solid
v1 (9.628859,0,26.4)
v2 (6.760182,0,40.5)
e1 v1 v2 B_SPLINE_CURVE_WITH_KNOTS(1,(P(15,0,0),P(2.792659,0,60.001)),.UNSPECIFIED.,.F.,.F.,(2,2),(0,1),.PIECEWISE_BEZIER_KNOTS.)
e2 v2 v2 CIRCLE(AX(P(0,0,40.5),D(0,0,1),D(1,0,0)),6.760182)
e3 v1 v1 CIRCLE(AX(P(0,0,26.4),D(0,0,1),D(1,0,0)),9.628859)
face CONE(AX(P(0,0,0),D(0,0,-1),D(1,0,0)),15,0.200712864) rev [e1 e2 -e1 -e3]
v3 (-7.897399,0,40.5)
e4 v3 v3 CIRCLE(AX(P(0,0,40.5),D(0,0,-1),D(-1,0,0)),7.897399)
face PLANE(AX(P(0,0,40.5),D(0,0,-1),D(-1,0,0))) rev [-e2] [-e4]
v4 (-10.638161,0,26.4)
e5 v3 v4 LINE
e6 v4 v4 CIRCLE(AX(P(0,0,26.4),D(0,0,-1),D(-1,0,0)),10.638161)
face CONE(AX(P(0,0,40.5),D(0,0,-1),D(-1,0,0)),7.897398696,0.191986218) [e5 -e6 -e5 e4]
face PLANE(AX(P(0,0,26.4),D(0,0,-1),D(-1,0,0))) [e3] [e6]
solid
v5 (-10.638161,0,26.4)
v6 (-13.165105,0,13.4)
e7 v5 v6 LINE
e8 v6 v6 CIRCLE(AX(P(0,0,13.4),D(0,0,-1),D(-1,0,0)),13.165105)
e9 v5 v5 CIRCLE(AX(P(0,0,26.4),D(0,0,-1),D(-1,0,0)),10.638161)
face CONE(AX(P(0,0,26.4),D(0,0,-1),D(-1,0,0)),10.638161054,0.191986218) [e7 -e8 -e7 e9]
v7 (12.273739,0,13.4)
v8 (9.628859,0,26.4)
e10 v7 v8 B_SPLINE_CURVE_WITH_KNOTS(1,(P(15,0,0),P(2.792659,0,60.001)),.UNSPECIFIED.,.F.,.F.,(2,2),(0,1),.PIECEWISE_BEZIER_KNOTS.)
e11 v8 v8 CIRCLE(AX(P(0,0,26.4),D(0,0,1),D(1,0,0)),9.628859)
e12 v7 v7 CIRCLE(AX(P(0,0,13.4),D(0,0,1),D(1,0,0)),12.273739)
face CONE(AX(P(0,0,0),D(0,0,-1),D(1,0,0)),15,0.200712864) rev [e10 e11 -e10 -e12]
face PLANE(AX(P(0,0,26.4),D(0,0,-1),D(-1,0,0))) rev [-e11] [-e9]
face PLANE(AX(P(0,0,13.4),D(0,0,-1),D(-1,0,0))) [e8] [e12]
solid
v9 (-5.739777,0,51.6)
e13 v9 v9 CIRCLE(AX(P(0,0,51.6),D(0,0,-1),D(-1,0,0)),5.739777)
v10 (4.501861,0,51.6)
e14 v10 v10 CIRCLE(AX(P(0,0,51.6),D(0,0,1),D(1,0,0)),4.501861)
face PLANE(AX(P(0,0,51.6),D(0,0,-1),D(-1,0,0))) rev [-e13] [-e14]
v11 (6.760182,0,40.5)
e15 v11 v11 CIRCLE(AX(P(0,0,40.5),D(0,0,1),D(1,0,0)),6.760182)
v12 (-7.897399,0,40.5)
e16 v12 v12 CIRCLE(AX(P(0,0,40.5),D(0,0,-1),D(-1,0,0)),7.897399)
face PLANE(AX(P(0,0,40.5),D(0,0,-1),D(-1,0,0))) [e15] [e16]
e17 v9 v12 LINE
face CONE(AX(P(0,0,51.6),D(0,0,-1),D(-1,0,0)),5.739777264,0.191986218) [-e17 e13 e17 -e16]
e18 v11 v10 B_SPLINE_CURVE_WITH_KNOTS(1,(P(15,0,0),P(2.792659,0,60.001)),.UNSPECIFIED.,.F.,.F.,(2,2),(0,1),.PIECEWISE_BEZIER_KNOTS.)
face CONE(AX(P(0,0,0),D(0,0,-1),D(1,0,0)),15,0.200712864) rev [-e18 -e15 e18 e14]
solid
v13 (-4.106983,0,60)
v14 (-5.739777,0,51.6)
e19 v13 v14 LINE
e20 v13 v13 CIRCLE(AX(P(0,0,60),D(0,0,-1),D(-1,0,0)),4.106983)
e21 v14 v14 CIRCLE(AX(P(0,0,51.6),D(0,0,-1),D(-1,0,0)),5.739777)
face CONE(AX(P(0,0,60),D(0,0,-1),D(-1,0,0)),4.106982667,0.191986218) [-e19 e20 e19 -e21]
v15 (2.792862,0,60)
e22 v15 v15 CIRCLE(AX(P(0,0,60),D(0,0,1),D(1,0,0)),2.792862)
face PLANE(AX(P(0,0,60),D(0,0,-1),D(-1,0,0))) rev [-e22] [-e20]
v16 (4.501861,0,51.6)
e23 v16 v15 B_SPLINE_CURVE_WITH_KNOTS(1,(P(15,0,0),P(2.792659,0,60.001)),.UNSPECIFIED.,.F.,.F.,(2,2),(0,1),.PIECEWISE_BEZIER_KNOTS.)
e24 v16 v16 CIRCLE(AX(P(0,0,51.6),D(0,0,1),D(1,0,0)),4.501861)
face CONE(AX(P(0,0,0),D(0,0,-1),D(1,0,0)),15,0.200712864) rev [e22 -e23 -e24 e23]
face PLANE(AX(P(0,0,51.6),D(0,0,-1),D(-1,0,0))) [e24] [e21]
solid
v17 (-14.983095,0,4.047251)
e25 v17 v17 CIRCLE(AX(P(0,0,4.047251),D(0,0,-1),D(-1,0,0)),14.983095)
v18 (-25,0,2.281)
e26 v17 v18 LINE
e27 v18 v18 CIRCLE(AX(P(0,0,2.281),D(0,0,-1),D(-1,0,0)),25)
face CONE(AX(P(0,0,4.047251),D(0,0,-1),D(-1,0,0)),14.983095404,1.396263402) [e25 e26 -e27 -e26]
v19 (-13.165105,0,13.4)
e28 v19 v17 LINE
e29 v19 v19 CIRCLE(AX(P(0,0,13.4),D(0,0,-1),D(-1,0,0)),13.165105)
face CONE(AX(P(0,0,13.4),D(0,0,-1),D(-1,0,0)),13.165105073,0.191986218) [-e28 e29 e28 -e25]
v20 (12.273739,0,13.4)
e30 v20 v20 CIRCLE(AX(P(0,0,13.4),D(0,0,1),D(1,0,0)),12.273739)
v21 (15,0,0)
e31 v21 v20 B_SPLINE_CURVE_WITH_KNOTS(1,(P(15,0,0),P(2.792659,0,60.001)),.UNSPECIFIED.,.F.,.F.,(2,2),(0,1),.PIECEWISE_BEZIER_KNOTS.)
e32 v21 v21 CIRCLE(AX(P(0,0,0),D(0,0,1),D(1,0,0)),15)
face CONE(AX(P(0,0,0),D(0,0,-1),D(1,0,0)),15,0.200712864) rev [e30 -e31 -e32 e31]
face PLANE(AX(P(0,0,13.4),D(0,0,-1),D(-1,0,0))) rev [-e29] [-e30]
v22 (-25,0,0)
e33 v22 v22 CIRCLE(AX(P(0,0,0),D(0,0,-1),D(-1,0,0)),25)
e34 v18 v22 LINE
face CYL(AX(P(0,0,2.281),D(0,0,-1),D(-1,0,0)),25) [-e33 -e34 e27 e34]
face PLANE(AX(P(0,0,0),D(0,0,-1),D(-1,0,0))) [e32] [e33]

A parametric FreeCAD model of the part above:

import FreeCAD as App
import Part
import Sketcher
from FreeCAD import Vector
Q = App.Units.Quantity


def add_polygon(sketch, points):
    """Adds a closed chain of lines whose ends are joined by coincident constraints."""
    first, n = sketch.GeometryCount, len(points)
    for a, b in zip(points, points[1:] + points[:1]):
        sketch.addGeometry(Part.LineSegment(App.Vector(*a, 0), App.Vector(*b, 0)), False)
    for i in range(n):
        sketch.addConstraint(Sketcher.Constraint("Coincident", first + i, 2, first + (i + 1) % n, 1))

doc = App.newDocument("Part")
params = doc.addObject("Spreadsheet::Sheet", "Params")
for row, (alias, value) in enumerate([
    ("sketch1_height", "8.4 mm"),
    ("revolution_angle", "360 deg"),
    ("sketch2_height", "11.1 mm"),
    ("revolution2_angle", "360 deg"),
    ("sketch3_height", "14.1 mm"),
    ("revolution3_angle", "360 deg"),
    ("sketch4_height", "13 mm"),
    ("revolution4_angle", "360 deg"),
    ("sketch5_width", "25 mm"),
    ("sketch5_height", "13.4 mm"),
    ("revolution5_angle", "360 deg"),
    ("sketch6_diameter", "30 mm"),
    ("pad1_length", "60.001 mm"),
    ("pad1_taper", "-11.5 deg"),
], start=1):
    params.set(f"A{row}", alias)
    params.set(f"B{row}", "=" + value)
    params.setAlias(f"B{row}", alias)

body = doc.addObject("PartDesign::Body", "Body")

# Sketch on XZ plane
sketch1 = body.newObject("Sketcher::SketchObject", "Sketch")
sketch1.AttachmentSupport = (doc.getObject("XZ_Plane"), [""])
sketch1.MapMode = "FlatFace"
add_polygon(sketch1, [(-5.7, 51.6), (0, 51.6), (0, 60), (-4.1, 60)])  # lines 0-3
sketch1.addConstraint(Sketcher.Constraint("Horizontal", 0))
sketch1.addConstraint(Sketcher.Constraint("Vertical", 1))
sketch1.addConstraint(Sketcher.Constraint("Horizontal", 2))
sketch1.addConstraint(Sketcher.Constraint("PointOnObject", 0, 2, -2))
sketch1.addConstraint(Sketcher.Constraint("Angle", 3, Q("-101 deg")))
sketch1.addConstraint(Sketcher.Constraint("DistanceY", 1, 1, 1, 2, Q("8.4 mm")))
sketch1.addConstraint(Sketcher.Constraint("DistanceY", -1, 1, 1, 2, Q("60 mm")))
sketch1.addConstraint(Sketcher.Constraint("DistanceX", 0, 1, 0, 2, Q("5.739777 mm")))
sketch1.setExpression("Constraints[9]", "Params.sketch1_height")
revolution = body.newObject("PartDesign::Revolution", "Revolution")
revolution.Profile = sketch1
revolution.ReferenceAxis = (sketch1, ["V_Axis"])
revolution.setExpression("Angle", "Params.revolution_angle")
body2 = doc.addObject("PartDesign::Body", "Body001")

# Sketch on XZ plane
sketch2 = body2.newObject("Sketcher::SketchObject", "Sketch001")
sketch2.AttachmentSupport = (doc.getObject("XZ_Plane001"), [""])
sketch2.MapMode = "FlatFace"
add_polygon(sketch2, [(-8, 40), (0, 40), (0, 52), (-6, 52)])  # lines 0-3
sketch2.addConstraint(Sketcher.Constraint("Horizontal", 0))
sketch2.addConstraint(Sketcher.Constraint("Vertical", 1))
sketch2.addConstraint(Sketcher.Constraint("Horizontal", 2))
sketch2.addConstraint(Sketcher.Constraint("PointOnObject", 0, 2, -2))
sketch2.addConstraint(Sketcher.Constraint("Angle", 3, Q("-101 deg")))
sketch2.addConstraint(Sketcher.Constraint("DistanceY", 1, 1, 1, 2, Q("11.1 mm")))
sketch2.addConstraint(Sketcher.Constraint("DistanceY", -1, 1, 0, 2, Q("40.5 mm")))
sketch2.addConstraint(Sketcher.Constraint("DistanceX", 0, 1, 0, 2, Q("7.897399 mm")))
sketch2.setExpression("Constraints[9]", "Params.sketch2_height")
revolution2 = body2.newObject("PartDesign::Revolution", "Revolution001")
revolution2.Profile = sketch2
revolution2.ReferenceAxis = (sketch2, ["V_Axis"])
revolution2.setExpression("Angle", "Params.revolution2_angle")
body3 = doc.addObject("PartDesign::Body", "Body002")

# Sketch on XZ plane
sketch3 = body3.newObject("Sketcher::SketchObject", "Sketch002")
sketch3.AttachmentSupport = (doc.getObject("XZ_Plane002"), [""])
sketch3.MapMode = "FlatFace"
add_polygon(sketch3, [(-11, 26), (0, 26), (0, 40), (-8, 40)])  # lines 0-3
sketch3.addConstraint(Sketcher.Constraint("Horizontal", 0))
sketch3.addConstraint(Sketcher.Constraint("Vertical", 1))
sketch3.addConstraint(Sketcher.Constraint("Horizontal", 2))
sketch3.addConstraint(Sketcher.Constraint("PointOnObject", 0, 2, -2))
sketch3.addConstraint(Sketcher.Constraint("Angle", 3, Q("-101 deg")))
sketch3.addConstraint(Sketcher.Constraint("DistanceY", 1, 1, 1, 2, Q("14.1 mm")))
sketch3.addConstraint(Sketcher.Constraint("DistanceY", -1, 1, 0, 2, Q("26.4 mm")))
sketch3.addConstraint(Sketcher.Constraint("DistanceX", 2, 2, 2, 1, Q("7.897399 mm")))
sketch3.setExpression("Constraints[9]", "Params.sketch3_height")
revolution3 = body3.newObject("PartDesign::Revolution", "Revolution002")
revolution3.Profile = sketch3
revolution3.ReferenceAxis = (sketch3, ["V_Axis"])
revolution3.setExpression("Angle", "Params.revolution3_angle")
body4 = doc.addObject("PartDesign::Body", "Body003")

# Sketch on XZ plane
sketch4 = body4.newObject("Sketcher::SketchObject", "Sketch003")
sketch4.AttachmentSupport = (doc.getObject("XZ_Plane003"), [""])
sketch4.MapMode = "FlatFace"
add_polygon(sketch4, [(-13, 13), (0, 13), (0, 26), (-11, 26)])  # lines 0-3
sketch4.addConstraint(Sketcher.Constraint("Horizontal", 0))
sketch4.addConstraint(Sketcher.Constraint("Vertical", 1))
sketch4.addConstraint(Sketcher.Constraint("Horizontal", 2))
sketch4.addConstraint(Sketcher.Constraint("PointOnObject", 0, 2, -2))
sketch4.addConstraint(Sketcher.Constraint("DistanceY", 1, 1, 1, 2, Q("13 mm")))
sketch4.addConstraint(Sketcher.Constraint("Angle", 3, Q("-101 deg")))
sketch4.addConstraint(Sketcher.Constraint("DistanceY", -1, 1, 0, 2, Q("13.4 mm")))
sketch4.addConstraint(Sketcher.Constraint("DistanceX", 2, 2, 2, 1, Q("10.638161 mm")))
sketch4.setExpression("Constraints[8]", "Params.sketch4_height")
revolution4 = body4.newObject("PartDesign::Revolution", "Revolution003")
revolution4.Profile = sketch4
revolution4.ReferenceAxis = (sketch4, ["V_Axis"])
revolution4.setExpression("Angle", "Params.revolution4_angle")
body5 = doc.addObject("PartDesign::Body", "Body004")

# Sketch on XZ plane
sketch5 = body5.newObject("Sketcher::SketchObject", "Sketch004")
sketch5.AttachmentSupport = (doc.getObject("XZ_Plane004"), [""])
sketch5.MapMode = "FlatFace"
add_polygon(sketch5, [(-25, 0), (0, 0), (0, 13.4), (-13.2, 13.4), (-15, 4), (-25, 2.3)])  # lines 0-5
sketch5.addConstraint(Sketcher.Constraint("Horizontal", 0))
sketch5.addConstraint(Sketcher.Constraint("Vertical", 1))
sketch5.addConstraint(Sketcher.Constraint("Horizontal", 2))
sketch5.addConstraint(Sketcher.Constraint("Vertical", 5))
sketch5.addConstraint(Sketcher.Constraint("Coincident", 0, 2, -1, 1))
sketch5.addConstraint(Sketcher.Constraint("DistanceX", 0, 1, 0, 2, Q("25 mm")))
sketch5.addConstraint(Sketcher.Constraint("Angle", 3, Q("-101 deg")))
sketch5.addConstraint(Sketcher.Constraint("Angle", 4, Q("-170 deg")))
sketch5.addConstraint(Sketcher.Constraint("DistanceY", 1, 1, 1, 2, Q("13.4 mm")))
sketch5.addConstraint(Sketcher.Constraint("DistanceY", 5, 2, 5, 1, Q("2.281 mm")))
sketch5.addConstraint(Sketcher.Constraint("Distance", 4, Q("10.171431 mm")))
sketch5.setExpression("Constraints[11]", "Params.sketch5_width")
sketch5.setExpression("Constraints[14]", "Params.sketch5_height")
revolution5 = body5.newObject("PartDesign::Revolution", "Revolution004")
revolution5.Profile = sketch5
revolution5.ReferenceAxis = (sketch5, ["V_Axis"])
revolution5.setExpression("Angle", "Params.revolution5_angle")
body6 = doc.addObject("PartDesign::Body", "Body005")

# Sketch on XY plane
sketch6 = body6.newObject("Sketcher::SketchObject", "Sketch005")
sketch6.AttachmentSupport = (doc.getObject("XY_Plane005"), [""])
sketch6.MapMode = "FlatFace"
sketch6.addGeometry(Part.Circle(Vector(0, 0, 0), Vector(0, 0, 1), 15), False)
sketch6.addConstraint(Sketcher.Constraint("Coincident", 0, 3, -1, 1))
sketch6.addConstraint(Sketcher.Constraint("Diameter", 0, Q("30 mm")))
sketch6.setExpression("Constraints[1]", "Params.sketch6_diameter")
pad1 = body6.newObject("PartDesign::Pad", "Pad")
pad1.Profile = sketch6
pad1.setExpression("Length", "Params.pad1_length")
pad1.setExpression("TaperAngle", "Params.pad1_taper")
doc.recompute()

body7 = doc.addObject("PartDesign::Body", "Body006")
body7.BaseFeature = body6
boolean = body.newObject("PartDesign::Boolean", "Boolean")
boolean.Type = "Cut"
boolean.addObjects([body7])
doc.recompute()

body8 = doc.addObject("PartDesign::Body", "Body007")
body8.BaseFeature = body6
boolean2 = body2.newObject("PartDesign::Boolean", "Boolean001")
boolean2.Type = "Cut"
boolean2.addObjects([body8])
doc.recompute()

body9 = doc.addObject("PartDesign::Body", "Body008")
body9.BaseFeature = body6
boolean3 = body3.newObject("PartDesign::Boolean", "Boolean002")
boolean3.Type = "Cut"
boolean3.addObjects([body9])
doc.recompute()

body10 = doc.addObject("PartDesign::Body", "Body009")
body10.BaseFeature = body6
boolean4 = body4.newObject("PartDesign::Boolean", "Boolean003")
boolean4.Type = "Cut"
boolean4.addObjects([body10])
doc.recompute()

boolean5 = body5.newObject("PartDesign::Boolean", "Boolean004")
boolean5.Type = "Cut"
boolean5.addObjects([body6])

doc.recompute()
